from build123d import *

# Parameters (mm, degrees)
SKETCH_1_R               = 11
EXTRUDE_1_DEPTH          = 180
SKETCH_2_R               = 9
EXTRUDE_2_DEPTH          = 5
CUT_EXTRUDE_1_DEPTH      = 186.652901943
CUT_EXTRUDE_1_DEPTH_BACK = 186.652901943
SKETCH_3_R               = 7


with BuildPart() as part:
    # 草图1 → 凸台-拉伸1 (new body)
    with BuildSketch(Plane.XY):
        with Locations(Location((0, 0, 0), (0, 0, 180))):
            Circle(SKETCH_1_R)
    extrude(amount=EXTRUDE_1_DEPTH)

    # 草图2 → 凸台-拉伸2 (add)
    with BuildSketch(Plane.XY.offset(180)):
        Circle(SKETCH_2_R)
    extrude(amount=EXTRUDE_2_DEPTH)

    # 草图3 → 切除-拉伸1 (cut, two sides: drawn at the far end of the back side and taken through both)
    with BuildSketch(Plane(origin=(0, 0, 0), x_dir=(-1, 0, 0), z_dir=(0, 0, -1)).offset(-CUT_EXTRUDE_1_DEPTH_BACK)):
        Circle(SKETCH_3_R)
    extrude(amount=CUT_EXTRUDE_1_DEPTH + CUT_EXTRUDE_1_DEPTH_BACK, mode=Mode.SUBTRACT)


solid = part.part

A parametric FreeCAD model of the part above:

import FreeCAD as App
import Part
import Sketcher
from FreeCAD import Vector

doc = App.newDocument("Part")
body = doc.addObject("PartDesign::Body", "Body")

sketch1 = body.newObject("Sketcher::SketchObject", "Sketch")
sketch1.AttachmentSupport = (doc.getObject("XY_Plane"), [""])
sketch1.MapMode = "FlatFace"
sketch1.addGeometry(Part.Circle(Vector(0, 0, 0), Vector(0, 0, 1), 11), False)
sketch1.addConstraint(Sketcher.Constraint("Coincident", 0, 3, -1, 1))
sketch1.addConstraint(Sketcher.Constraint("Diameter", 0, 22.0))
pad1 = body.newObject("PartDesign::Pad", "Pad")
pad1.Profile = sketch1
pad1.Length = 180

sketch2 = body.newObject("Sketcher::SketchObject", "Sketch001")
sketch2.AttachmentSupport = (doc.getObject("XY_Plane"), [""])
sketch2.MapMode = "FlatFace"
sketch2.AttachmentOffset = App.Placement(Vector(0, 0, 180), App.Rotation())
sketch2.addGeometry(Part.Circle(Vector(0, 0, 0), Vector(0, 0, 1), 9), False)
sketch2.addConstraint(Sketcher.Constraint("Coincident", 0, 3, -1, 1))
sketch2.addConstraint(Sketcher.Constraint("Diameter", 0, 18.0))
pad2 = body.newObject("PartDesign::Pad", "Pad001")
pad2.Profile = sketch2
pad2.Length = 5

sketch3 = body.newObject("Sketcher::SketchObject", "Sketch002")
sketch3.AttachmentSupport = (doc.getObject("XY_Plane"), [""])
sketch3.MapMode = "FlatFace"
sketch3.addGeometry(Part.Circle(Vector(0, 0, 0), Vector(0, 0, 1), 7), False)
sketch3.addConstraint(Sketcher.Constraint("Coincident", 0, 3, -1, 1))
sketch3.addConstraint(Sketcher.Constraint("Diameter", 0, 14.0))
pocket1 = body.newObject("PartDesign::Pocket", "Pocket")
pocket1.Profile = sketch3
pocket1.Type = "ThroughAll"
pocket1.Midplane = True

doc.recompute()
